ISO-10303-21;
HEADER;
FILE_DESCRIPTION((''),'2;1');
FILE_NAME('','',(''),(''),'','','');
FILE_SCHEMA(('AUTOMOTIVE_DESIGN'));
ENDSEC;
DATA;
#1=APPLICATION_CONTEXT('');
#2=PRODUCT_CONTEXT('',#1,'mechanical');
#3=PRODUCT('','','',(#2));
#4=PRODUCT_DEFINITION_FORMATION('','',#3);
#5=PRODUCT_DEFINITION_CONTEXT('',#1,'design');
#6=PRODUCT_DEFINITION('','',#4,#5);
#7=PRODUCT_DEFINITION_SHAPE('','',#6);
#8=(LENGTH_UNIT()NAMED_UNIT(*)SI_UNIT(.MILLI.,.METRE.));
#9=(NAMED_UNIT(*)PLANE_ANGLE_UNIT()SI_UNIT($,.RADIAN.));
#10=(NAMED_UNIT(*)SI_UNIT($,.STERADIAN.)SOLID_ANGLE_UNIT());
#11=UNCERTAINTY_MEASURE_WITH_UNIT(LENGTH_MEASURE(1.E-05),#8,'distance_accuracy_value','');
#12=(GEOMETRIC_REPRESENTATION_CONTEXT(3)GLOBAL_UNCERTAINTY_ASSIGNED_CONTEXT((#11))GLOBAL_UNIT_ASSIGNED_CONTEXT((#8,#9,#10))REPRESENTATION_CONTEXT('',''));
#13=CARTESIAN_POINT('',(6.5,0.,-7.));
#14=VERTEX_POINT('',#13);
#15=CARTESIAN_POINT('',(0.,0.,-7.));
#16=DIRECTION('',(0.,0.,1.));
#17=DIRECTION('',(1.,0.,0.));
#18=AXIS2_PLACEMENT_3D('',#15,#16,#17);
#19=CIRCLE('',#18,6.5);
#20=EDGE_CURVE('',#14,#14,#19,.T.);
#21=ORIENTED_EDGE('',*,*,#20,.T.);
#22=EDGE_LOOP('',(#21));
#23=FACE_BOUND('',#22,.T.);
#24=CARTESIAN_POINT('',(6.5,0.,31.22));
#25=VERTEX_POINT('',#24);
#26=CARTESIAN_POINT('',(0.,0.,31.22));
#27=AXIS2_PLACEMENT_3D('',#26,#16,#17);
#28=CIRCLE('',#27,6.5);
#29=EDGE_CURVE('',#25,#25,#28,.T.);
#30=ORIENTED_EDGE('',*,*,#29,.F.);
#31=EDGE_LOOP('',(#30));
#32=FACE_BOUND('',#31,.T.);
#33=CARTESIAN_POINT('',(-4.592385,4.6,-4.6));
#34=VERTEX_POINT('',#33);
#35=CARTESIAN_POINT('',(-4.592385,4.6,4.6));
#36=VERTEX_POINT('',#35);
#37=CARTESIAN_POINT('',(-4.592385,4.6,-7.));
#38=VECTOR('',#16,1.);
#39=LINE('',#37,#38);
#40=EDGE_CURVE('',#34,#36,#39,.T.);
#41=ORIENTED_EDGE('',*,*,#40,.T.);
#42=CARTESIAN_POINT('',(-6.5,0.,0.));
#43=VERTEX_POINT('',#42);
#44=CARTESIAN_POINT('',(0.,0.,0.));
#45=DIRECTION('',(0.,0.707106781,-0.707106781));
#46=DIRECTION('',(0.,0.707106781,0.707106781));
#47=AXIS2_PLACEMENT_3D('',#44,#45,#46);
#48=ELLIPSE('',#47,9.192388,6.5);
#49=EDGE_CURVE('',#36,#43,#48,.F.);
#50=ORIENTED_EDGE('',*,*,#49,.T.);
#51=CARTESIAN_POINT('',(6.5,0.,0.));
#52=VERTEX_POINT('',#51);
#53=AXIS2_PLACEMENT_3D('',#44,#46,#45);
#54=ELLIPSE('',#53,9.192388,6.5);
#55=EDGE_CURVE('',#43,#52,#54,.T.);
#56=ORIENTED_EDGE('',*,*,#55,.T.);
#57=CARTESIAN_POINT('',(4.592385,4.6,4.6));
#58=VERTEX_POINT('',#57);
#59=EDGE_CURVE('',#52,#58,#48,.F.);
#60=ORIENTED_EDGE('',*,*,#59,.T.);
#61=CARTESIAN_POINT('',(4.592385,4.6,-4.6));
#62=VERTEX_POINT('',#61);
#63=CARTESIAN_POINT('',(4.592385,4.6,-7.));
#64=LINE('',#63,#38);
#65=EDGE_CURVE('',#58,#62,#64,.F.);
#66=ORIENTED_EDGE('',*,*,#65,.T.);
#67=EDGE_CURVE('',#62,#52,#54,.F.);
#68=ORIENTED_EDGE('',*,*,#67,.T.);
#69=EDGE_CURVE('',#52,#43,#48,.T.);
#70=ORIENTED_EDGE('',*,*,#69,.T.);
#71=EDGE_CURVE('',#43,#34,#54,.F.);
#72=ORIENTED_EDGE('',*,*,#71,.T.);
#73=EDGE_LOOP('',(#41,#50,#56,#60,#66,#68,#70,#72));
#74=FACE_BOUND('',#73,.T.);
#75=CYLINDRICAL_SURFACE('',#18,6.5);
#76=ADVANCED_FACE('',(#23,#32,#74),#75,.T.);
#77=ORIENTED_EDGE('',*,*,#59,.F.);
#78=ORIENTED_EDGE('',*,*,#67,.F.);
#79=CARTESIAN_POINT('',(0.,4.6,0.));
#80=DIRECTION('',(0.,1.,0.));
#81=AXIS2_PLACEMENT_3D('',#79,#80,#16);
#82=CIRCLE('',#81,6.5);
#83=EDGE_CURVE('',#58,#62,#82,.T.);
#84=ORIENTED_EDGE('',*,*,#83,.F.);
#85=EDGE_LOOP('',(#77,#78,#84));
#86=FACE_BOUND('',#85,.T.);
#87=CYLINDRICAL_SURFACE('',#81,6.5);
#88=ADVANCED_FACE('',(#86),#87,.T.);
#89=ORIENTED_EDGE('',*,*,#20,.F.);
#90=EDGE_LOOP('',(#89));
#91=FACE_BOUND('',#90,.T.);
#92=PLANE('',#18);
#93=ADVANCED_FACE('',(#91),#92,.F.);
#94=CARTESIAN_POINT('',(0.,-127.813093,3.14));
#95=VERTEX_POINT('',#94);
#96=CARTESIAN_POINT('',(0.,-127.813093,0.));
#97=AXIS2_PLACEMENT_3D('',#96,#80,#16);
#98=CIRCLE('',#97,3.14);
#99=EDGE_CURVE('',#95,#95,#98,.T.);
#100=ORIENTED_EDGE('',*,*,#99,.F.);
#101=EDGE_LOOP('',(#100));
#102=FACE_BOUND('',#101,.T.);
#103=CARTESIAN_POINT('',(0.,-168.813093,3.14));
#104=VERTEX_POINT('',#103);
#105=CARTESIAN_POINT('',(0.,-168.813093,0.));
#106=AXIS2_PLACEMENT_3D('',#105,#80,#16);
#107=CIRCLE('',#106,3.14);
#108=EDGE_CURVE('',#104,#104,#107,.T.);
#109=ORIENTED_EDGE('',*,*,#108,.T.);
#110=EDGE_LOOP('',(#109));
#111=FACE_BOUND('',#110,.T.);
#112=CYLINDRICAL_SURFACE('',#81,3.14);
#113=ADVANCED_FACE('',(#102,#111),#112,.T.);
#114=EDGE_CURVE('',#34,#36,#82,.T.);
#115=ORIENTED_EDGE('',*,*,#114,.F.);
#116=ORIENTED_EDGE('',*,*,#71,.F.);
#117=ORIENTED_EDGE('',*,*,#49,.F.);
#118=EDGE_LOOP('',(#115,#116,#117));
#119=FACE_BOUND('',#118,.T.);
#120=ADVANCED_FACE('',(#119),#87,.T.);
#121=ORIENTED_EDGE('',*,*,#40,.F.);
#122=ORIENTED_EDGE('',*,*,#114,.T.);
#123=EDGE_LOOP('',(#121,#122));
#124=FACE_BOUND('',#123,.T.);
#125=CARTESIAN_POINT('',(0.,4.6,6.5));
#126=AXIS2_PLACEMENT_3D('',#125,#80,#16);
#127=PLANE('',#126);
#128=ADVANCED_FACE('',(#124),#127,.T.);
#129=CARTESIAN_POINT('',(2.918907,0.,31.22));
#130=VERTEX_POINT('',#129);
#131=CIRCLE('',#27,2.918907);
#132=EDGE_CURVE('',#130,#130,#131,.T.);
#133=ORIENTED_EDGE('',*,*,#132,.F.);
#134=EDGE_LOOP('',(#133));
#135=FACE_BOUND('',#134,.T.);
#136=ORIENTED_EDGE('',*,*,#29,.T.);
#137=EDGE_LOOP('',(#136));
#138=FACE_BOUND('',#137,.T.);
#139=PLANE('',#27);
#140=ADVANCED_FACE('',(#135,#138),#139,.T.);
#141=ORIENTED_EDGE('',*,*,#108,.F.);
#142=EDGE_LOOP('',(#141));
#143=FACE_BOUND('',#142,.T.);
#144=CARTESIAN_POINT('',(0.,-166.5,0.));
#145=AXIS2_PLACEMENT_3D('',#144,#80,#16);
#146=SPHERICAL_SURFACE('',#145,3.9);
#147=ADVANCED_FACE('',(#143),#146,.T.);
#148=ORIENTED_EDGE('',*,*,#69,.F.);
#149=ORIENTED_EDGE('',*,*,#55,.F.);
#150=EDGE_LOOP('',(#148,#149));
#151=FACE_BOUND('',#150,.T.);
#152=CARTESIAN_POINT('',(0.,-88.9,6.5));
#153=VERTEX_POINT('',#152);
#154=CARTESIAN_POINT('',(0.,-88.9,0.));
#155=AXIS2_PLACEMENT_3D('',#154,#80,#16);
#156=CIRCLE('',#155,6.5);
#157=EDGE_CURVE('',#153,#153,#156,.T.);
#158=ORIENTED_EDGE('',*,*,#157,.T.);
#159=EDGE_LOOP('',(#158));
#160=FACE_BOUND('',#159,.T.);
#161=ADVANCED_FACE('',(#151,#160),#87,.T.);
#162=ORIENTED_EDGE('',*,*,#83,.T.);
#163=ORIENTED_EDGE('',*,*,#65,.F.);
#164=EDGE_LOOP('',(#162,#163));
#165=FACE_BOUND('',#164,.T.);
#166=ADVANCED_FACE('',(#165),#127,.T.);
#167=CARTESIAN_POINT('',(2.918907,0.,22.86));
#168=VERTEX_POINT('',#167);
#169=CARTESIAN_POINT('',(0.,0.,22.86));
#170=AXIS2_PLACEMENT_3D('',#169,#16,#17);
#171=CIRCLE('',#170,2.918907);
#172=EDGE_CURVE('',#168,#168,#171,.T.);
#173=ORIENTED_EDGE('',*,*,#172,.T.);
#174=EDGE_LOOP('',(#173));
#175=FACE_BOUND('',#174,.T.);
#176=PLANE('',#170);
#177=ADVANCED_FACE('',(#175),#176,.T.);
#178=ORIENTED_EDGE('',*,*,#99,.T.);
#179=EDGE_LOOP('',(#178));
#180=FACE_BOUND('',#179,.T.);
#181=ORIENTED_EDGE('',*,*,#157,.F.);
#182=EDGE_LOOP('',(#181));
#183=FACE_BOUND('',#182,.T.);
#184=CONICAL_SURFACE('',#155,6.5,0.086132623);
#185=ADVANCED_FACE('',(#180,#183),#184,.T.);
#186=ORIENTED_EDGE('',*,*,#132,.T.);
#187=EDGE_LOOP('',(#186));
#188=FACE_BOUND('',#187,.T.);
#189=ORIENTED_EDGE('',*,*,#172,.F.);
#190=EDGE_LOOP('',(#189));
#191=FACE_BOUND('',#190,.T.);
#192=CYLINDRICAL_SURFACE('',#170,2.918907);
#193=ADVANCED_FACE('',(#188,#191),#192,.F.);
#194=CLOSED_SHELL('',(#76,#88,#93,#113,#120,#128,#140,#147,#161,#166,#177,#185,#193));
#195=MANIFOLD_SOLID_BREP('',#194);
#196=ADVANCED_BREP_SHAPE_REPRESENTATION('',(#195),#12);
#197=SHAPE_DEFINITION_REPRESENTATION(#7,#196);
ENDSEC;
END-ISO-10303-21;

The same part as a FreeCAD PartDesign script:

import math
import FreeCAD as App
import Part
import Sketcher

V = App.Vector
Q = App.Units.Quantity

doc = App.newDocument("Part")
body = doc.addObject("PartDesign::Body", "Body")

sketch1 = body.newObject("Sketcher::SketchObject", "Sketch")
sketch1.AttachmentSupport = (doc.getObject("YZ_Plane"), [""])
sketch1.MapMode = "FlatFace"
sketch1.addGeometry([
    Part.LineSegment(V(-170.4, 0, 0), V(4.6, 0, 0)),
    Part.LineSegment(V(4.6, 0, 0), V(4.6, 6.5, 0)),
    Part.LineSegment(V(4.6, 6.5, 0), V(-88.9, 6.5, 0)),
    Part.LineSegment(V(-88.9, 6.5, 0), V(-127.8, 3.1, 0)),
    Part.LineSegment(V(-127.8, 3.1, 0), V(-168.8, 3.1, 0)),
    Part.ArcOfCircle(Part.Circle(V(-166.5, 0, 0), V(0, 0, 1), 3.9), math.radians(126), math.radians(180)),
], False)
sketch1.addConstraint([
    Sketcher.Constraint("Coincident", 0, 2, 1, 1),
    Sketcher.Constraint("Coincident", 1, 2, 2, 1),
    Sketcher.Constraint("Coincident", 2, 2, 3, 1),
    Sketcher.Constraint("Coincident", 3, 2, 4, 1),
    Sketcher.Constraint("Coincident", 4, 2, 5, 1),
    Sketcher.Constraint("Coincident", 5, 2, 0, 1),
    Sketcher.Constraint("Horizontal", 0),
    Sketcher.Constraint("Vertical", 1),
    Sketcher.Constraint("Horizontal", 2),
    Sketcher.Constraint("Horizontal", 4),
    Sketcher.Constraint("PointOnObject", 5, 3, -1),
    Sketcher.Constraint("PointOnObject", 0, 2, -1),
    Sketcher.Constraint("Radius", 5, Q("3.9 mm")),
    Sketcher.Constraint("DistanceX", 0, 1, 0, 2, Q("175 mm")),
    Sketcher.Constraint("DistanceX", 4, 2, 4, 1, Q("41 mm")),
    Sketcher.Constraint("DistanceX", 2, 2, 2, 1, Q("93.5 mm")),
    Sketcher.Constraint("DistanceY", 1, 1, 1, 2, Q("6.5 mm")),
    Sketcher.Constraint("DistanceX", 5, 3, -1, 1, Q("166.5 mm")),
    Sketcher.Constraint("DistanceY", -1, 1, 3, 2, Q("3.14 mm")),
])
revolution = body.newObject("PartDesign::Revolution", "Revolution")
revolution.Profile = sketch1
revolution.ReferenceAxis = (sketch1, ["H_Axis"])
revolution.Angle = 360

sketch2 = body.newObject("Sketcher::SketchObject", "Sketch001")
sketch2.AttachmentSupport = (doc.getObject("XY_Plane"), [""])
sketch2.MapMode = "FlatFace"
sketch2.addGeometry(Part.Circle(V(0, 0, 0), V(0, 0, 1), 6), False)
sketch2.addConstraint([
    Sketcher.Constraint("Coincident", 0, 3, -1, 1),
    Sketcher.Constraint("Diameter", 0, Q("13 mm")),
])
pad1 = body.newObject("PartDesign::Pad", "Pad")
pad1.Profile = sketch2
pad1.Type = "TwoLengths"
pad1.Length = 31.22
pad1.Length2 = 7

sketch3 = body.newObject("Sketcher::SketchObject", "Sketch002")
sketch3.AttachmentSupport = (doc.getObject("XY_Plane"), [""])
sketch3.MapMode = "FlatFace"
sketch3.AttachmentOffset = App.Placement(V(0, 0, 31.22), App.Rotation())
sketch3.addGeometry(Part.Circle(V(0, 0, 0), V(0, 0, 1), 2.9), False)
sketch3.addConstraint([
    Sketcher.Constraint("Coincident", 0, 3, -1, 1),
    Sketcher.Constraint("Diameter", 0, Q("5.837813 mm")),
])
pocket1 = body.newObject("PartDesign::Pocket", "Pocket")
pocket1.Profile = sketch3
pocket1.Length = 8.36

doc.recompute()
